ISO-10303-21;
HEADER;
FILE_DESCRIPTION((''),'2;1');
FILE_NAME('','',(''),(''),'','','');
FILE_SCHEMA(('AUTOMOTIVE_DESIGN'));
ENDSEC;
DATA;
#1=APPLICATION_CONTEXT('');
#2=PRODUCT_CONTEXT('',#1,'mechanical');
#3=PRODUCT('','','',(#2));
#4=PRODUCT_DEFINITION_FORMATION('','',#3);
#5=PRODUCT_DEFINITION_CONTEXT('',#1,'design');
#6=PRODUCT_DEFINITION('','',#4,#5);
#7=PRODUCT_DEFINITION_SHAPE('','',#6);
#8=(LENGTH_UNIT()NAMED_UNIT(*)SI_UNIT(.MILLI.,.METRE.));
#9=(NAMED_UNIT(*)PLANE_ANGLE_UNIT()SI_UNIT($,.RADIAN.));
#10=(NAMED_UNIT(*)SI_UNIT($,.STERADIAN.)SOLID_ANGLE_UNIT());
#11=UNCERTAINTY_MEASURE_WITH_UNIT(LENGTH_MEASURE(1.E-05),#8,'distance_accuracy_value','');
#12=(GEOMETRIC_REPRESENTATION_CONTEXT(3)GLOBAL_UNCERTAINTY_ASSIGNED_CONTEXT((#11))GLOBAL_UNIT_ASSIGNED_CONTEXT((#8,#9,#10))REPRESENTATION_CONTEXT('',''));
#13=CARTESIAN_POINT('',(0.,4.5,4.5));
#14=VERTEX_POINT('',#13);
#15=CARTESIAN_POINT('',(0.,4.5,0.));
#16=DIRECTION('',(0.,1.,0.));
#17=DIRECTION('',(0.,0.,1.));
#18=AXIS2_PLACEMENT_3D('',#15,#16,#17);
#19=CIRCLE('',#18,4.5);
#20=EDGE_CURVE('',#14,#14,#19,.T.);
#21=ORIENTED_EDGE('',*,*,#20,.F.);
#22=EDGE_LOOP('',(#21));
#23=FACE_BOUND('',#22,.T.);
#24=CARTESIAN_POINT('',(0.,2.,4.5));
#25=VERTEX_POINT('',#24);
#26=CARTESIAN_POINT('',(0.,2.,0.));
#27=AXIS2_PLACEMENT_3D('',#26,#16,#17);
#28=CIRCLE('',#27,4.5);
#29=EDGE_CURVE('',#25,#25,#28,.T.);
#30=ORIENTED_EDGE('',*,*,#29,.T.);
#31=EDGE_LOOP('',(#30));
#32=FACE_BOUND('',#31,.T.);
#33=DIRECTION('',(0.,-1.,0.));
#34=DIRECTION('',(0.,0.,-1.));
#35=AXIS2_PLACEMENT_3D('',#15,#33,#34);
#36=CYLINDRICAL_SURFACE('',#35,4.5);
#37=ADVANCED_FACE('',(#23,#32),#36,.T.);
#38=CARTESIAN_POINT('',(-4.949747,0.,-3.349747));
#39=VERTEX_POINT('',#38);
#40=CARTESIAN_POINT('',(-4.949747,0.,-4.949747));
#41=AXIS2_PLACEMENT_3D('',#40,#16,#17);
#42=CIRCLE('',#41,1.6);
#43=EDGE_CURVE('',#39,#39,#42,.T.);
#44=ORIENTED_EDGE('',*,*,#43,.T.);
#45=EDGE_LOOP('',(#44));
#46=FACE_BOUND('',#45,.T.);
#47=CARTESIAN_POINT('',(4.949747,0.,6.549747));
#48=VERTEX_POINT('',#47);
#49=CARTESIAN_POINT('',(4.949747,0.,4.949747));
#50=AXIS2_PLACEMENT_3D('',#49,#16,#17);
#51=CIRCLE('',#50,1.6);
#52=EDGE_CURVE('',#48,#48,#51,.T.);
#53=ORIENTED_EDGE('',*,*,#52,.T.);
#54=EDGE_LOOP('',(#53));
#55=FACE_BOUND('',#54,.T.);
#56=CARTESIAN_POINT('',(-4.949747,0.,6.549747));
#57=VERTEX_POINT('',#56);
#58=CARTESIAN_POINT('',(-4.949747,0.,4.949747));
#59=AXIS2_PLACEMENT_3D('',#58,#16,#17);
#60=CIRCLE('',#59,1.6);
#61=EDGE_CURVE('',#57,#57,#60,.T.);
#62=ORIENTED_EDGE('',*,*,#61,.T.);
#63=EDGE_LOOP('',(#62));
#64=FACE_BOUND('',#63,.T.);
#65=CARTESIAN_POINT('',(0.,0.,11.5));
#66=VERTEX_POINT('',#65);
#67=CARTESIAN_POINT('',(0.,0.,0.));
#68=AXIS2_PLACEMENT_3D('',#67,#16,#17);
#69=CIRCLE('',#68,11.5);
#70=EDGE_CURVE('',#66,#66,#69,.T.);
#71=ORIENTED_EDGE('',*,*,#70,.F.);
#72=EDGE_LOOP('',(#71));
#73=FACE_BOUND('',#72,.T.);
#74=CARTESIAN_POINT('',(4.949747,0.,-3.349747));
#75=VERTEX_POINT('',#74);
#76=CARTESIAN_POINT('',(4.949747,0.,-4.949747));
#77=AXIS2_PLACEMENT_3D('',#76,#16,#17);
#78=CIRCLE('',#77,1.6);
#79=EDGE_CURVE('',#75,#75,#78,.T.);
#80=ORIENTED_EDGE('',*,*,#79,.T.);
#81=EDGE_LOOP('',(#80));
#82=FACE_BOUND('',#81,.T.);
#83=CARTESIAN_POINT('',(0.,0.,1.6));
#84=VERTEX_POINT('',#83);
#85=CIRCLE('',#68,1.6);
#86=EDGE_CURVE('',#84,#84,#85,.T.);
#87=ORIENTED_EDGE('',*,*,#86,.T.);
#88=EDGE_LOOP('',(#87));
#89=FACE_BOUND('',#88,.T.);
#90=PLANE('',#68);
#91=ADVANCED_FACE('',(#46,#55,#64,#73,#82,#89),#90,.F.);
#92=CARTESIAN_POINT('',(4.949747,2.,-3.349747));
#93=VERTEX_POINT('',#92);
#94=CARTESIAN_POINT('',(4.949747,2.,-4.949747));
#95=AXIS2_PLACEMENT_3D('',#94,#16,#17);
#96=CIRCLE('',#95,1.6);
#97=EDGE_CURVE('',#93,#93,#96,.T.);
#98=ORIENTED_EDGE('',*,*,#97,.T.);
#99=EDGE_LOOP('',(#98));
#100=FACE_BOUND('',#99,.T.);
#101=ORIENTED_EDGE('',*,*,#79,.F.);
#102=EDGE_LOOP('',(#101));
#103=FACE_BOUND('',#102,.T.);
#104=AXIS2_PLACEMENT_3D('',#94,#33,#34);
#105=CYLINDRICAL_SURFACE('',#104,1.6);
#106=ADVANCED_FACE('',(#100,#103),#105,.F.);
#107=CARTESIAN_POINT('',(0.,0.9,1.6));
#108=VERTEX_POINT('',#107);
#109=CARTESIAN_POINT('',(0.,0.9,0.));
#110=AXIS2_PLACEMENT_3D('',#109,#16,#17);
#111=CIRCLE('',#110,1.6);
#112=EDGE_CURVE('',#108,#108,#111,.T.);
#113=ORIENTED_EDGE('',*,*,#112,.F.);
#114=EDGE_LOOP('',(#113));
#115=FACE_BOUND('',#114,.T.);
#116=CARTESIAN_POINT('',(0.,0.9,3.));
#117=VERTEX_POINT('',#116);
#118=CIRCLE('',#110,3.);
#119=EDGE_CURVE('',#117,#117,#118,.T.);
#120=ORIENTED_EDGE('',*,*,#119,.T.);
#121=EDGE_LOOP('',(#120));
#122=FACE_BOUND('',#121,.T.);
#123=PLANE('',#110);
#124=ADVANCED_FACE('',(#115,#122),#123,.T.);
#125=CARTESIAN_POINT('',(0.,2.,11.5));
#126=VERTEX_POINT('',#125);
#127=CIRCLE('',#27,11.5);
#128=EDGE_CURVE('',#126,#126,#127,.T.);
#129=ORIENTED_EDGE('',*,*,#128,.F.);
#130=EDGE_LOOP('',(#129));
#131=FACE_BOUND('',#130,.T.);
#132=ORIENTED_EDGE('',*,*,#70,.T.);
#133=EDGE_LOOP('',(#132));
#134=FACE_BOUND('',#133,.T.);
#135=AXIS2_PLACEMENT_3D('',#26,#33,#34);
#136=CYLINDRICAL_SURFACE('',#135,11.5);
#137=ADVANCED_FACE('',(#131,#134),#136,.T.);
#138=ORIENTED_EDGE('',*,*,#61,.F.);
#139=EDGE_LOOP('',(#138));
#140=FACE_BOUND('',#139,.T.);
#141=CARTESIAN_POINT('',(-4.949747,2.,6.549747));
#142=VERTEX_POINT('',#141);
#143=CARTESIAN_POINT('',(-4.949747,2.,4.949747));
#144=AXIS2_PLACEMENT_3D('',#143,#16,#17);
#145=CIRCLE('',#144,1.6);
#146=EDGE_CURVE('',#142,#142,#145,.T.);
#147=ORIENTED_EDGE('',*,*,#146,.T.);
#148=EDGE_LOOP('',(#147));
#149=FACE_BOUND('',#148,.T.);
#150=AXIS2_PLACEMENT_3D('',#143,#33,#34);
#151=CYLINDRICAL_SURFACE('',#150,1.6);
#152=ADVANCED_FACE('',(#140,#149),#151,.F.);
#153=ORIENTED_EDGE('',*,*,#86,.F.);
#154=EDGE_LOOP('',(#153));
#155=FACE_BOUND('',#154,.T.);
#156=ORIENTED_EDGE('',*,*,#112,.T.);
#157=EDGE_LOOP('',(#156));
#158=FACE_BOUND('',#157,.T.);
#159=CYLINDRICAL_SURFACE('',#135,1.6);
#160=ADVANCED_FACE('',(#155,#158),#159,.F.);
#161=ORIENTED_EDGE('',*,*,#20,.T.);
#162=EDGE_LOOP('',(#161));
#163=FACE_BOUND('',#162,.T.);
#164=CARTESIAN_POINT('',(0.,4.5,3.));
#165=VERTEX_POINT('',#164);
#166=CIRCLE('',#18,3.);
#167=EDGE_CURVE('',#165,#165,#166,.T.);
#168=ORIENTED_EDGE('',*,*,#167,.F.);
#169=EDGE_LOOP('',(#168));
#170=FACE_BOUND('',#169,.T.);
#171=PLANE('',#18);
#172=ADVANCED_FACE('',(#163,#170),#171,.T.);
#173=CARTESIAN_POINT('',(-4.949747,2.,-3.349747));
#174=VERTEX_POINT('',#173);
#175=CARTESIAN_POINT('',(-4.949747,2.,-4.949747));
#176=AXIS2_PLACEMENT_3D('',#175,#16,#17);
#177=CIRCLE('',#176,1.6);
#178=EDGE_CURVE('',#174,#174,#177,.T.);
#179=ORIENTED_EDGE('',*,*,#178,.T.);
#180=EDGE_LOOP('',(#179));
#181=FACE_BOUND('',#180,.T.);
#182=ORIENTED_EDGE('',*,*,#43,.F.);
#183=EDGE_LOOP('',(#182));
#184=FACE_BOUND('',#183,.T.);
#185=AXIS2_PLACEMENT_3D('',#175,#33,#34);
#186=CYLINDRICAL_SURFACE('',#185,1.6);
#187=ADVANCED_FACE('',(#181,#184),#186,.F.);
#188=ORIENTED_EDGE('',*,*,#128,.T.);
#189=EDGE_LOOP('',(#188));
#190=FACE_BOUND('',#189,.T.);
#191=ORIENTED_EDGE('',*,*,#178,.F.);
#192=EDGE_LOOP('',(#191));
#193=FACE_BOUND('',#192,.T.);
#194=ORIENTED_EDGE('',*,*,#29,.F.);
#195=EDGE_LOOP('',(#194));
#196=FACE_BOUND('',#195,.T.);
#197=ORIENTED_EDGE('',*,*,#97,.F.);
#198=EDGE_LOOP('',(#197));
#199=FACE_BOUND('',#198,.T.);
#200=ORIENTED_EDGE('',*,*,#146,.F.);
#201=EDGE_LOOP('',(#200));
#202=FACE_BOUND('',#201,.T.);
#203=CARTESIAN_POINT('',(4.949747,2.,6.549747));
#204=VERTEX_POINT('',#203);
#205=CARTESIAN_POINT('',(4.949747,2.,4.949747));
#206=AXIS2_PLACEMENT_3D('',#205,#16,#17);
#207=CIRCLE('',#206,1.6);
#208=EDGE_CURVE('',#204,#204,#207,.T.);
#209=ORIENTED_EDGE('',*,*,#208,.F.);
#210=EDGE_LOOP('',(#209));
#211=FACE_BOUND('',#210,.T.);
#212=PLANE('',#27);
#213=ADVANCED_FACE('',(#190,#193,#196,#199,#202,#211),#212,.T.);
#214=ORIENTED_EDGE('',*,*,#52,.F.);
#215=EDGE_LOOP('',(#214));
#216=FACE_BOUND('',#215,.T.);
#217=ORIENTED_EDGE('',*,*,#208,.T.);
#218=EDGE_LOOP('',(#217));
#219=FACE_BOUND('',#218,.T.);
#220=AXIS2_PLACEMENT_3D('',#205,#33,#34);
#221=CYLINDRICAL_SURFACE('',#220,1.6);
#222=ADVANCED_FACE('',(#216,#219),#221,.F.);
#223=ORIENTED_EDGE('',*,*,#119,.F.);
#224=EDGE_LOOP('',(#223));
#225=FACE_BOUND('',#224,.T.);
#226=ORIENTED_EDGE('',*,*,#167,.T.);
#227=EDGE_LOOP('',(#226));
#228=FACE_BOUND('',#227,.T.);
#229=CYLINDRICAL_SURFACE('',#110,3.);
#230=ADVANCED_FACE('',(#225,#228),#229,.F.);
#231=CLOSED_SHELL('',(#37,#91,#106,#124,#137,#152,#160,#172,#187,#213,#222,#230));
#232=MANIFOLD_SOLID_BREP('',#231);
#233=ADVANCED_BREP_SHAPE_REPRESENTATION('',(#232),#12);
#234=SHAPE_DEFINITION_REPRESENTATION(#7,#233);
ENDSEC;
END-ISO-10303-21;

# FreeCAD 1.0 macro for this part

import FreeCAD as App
import Part
import Sketcher

V = App.Vector

doc = App.newDocument("Part")
body = doc.addObject("PartDesign::Body", "Body")

sketch1 = doc.addObject("Sketcher::SketchObject", "Sketch")
body.addObject(sketch1)
sketch1.AttachmentSupport = (doc.XZ_Plane, [""])
sketch1.MapMode = "FlatFace"
sketch1.addGeometry(Part.Circle(V(0, 0, 0), V(0, 0, 1), 11.5), False)
sketch1.addGeometry(Part.Circle(V(-4.949747, -4.949747, 0), V(0, 0, 1), 1.6), False)
sketch1.addGeometry(Part.Circle(V(0, 0, 0), V(0, 0, 1), 1.6), False)
sketch1.addGeometry(Part.Circle(V(-4.949747, 4.949747, 0), V(0, 0, 1), 1.6), False)
sketch1.addGeometry(Part.Circle(V(4.949747, -4.949747, 0), V(0, 0, 1), 1.6), False)
sketch1.addGeometry(Part.Circle(V(4.949747, 4.949747, 0), V(0, 0, 1), 1.6), False)
sketch1.addConstraint(Sketcher.Constraint("Coincident", 0, 3, -1, 1))
sketch1.addConstraint(Sketcher.Constraint("Coincident", 2, 3, -1, 1))
sketch1.addConstraint(Sketcher.Constraint("Equal", 1, 2))
sketch1.addConstraint(Sketcher.Constraint("Equal", 2, 3))
sketch1.addConstraint(Sketcher.Constraint("Equal", 3, 4))
sketch1.addConstraint(Sketcher.Constraint("Equal", 4, 5))
sketch1.addConstraint(Sketcher.Constraint("Symmetric", 3, 3, 4, 3, -1, 1))
sketch1.addConstraint(Sketcher.Constraint("Symmetric", 1, 3, 5, 3, -1, 1))
sketch1.addConstraint(Sketcher.Constraint("Symmetric", 1, 3, 4, 3, -2))
sketch1.addConstraint(Sketcher.Constraint("Diameter", 0, 23.0))
sketch1.addConstraint(Sketcher.Constraint("Diameter", 1, 3.2))
sketch1.addConstraint(Sketcher.Constraint("DistanceX", 1, 3, -1, 1, 4.949747))
sketch1.addConstraint(Sketcher.Constraint("DistanceY", 1, 3, -1, 1, 4.949747))
pad1 = doc.addObject("PartDesign::Pad", "Pad")
body.addObject(pad1)
pad1.Profile = sketch1
pad1.Length = 2
pad1.Reversed = True

sketch2 = doc.addObject("Sketcher::SketchObject", "Sketch001")
body.addObject(sketch2)
sketch2.AttachmentSupport = (doc.XZ_Plane, [""])
sketch2.MapMode = "FlatFace"
sketch2.AttachmentOffset = App.Placement(V(0, 0, -2), App.Rotation())
sketch2.addGeometry(Part.Circle(V(0, 0, 0), V(0, 0, 1), 4.5), False)
sketch2.addGeometry(Part.Circle(V(0, 0, 0), V(0, 0, 1), 1.6), False)
sketch2.addConstraint(Sketcher.Constraint("Coincident", 0, 3, -1, 1))
sketch2.addConstraint(Sketcher.Constraint("Coincident", 1, 3, -1, 1))
sketch2.addConstraint(Sketcher.Constraint("Diameter", 0, 9.0))
sketch2.addConstraint(Sketcher.Constraint("Diameter", 1, 3.2))
pad2 = doc.addObject("PartDesign::Pad", "Pad001")
body.addObject(pad2)
pad2.Profile = sketch2
pad2.Length = 2.5
pad2.Reversed = True

sketch3 = doc.addObject("Sketcher::SketchObject", "Sketch002")
body.addObject(sketch3)
sketch3.AttachmentSupport = (doc.XZ_Plane, [""])
sketch3.MapMode = "FlatFace"
sketch3.AttachmentOffset = App.Placement(V(0, 0, -4.5), App.Rotation())
sketch3.addGeometry(Part.Circle(V(0, 0, 0), V(0, 0, 1), 3), False)
sketch3.addConstraint(Sketcher.Constraint("Coincident", 0, 3, -1, 1))
sketch3.addConstraint(Sketcher.Constraint("Diameter", 0, 6.0))
pocket1 = doc.addObject("PartDesign::Pocket", "Pocket")
body.addObject(pocket1)
pocket1.Profile = sketch3
pocket1.Length = 3.6
pocket1.Reversed = True

doc.recompute()
